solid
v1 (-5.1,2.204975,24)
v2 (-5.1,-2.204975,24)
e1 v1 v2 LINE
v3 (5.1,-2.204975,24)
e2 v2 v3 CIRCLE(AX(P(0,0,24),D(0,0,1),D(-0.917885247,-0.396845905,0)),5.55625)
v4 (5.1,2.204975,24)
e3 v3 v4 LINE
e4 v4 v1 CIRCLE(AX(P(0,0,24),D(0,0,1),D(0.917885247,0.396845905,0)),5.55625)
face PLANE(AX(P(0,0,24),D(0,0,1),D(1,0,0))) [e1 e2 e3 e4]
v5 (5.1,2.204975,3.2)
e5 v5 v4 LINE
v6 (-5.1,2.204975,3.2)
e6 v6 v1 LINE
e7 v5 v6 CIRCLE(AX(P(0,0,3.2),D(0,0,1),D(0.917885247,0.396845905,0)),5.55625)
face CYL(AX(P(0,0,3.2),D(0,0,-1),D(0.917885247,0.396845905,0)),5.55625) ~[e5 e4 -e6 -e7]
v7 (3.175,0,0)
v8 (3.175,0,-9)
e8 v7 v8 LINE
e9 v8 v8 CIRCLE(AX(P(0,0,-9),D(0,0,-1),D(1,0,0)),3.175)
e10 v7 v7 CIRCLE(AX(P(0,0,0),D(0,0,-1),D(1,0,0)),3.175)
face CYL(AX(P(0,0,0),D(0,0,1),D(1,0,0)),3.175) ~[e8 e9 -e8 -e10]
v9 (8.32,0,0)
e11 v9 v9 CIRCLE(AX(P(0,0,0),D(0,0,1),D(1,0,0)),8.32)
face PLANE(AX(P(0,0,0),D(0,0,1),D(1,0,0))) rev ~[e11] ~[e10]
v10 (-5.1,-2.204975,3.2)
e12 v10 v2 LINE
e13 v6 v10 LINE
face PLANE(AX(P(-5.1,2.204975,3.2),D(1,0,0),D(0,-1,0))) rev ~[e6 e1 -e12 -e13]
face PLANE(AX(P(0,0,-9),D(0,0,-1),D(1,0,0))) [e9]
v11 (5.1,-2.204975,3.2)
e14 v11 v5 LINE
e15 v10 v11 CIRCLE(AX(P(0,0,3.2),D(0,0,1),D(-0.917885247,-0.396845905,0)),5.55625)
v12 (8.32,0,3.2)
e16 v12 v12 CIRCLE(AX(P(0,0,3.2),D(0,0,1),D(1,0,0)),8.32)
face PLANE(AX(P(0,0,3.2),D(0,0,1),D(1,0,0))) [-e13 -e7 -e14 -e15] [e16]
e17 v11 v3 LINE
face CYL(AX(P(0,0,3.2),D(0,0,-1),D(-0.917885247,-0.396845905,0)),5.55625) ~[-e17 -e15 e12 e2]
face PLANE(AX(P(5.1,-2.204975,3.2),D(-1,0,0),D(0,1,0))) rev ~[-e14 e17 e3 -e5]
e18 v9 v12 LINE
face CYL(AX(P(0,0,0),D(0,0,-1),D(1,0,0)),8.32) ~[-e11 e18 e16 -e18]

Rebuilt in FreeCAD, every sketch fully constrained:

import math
import FreeCAD as App
import Part
import Sketcher

doc = App.newDocument("Part")
body = doc.addObject("PartDesign::Body", "Body")

sketch1 = doc.addObject("Sketcher::SketchObject", "Sketch")
body.addObject(sketch1)
sketch1.AttachmentSupport = (doc.XY_Plane, [""])
sketch1.MapMode = "FlatFace"
sketch1.addGeometry(Part.Circle(App.Vector(0, 0, 0), App.Vector(0, 0, 1), 8), False)
sketch1.addConstraint(Sketcher.Constraint("Coincident", 0, 3, -1, 1))
sketch1.addConstraint(Sketcher.Constraint("Diameter", 0, 16.64))
pad1 = doc.addObject("PartDesign::Pad", "Pad")
body.addObject(pad1)
pad1.Profile = sketch1
pad1.Length = 3.2

sketch2 = doc.addObject("Sketcher::SketchObject", "Sketch001")
body.addObject(sketch2)
sketch2.AttachmentSupport = (doc.XY_Plane, [""])
sketch2.MapMode = "FlatFace"
sketch2.AttachmentOffset = App.Placement(App.Vector(0, 0, 3.2), App.Rotation())
sketch2.addGeometry(Part.LineSegment(App.Vector(5.1, -2.2, 0), App.Vector(5.1, 2.2, 0)), False)
sketch2.addGeometry(Part.ArcOfCircle(Part.Circle(App.Vector(0, 0, 0), App.Vector(0, 0, 1), 5.6), math.radians(23), math.radians(157)), False)
sketch2.addGeometry(Part.LineSegment(App.Vector(-5.1, 2.2, 0), App.Vector(-5.1, -2.2, 0)), False)
sketch2.addGeometry(Part.ArcOfCircle(Part.Circle(App.Vector(0, 0, 0), App.Vector(0, 0, 1), 5.6), math.radians(-157), math.radians(-23)), False)
sketch2.addConstraint(Sketcher.Constraint("Coincident", 0, 2, 1, 1))
sketch2.addConstraint(Sketcher.Constraint("Coincident", 1, 2, 2, 1))
sketch2.addConstraint(Sketcher.Constraint("Coincident", 2, 2, 3, 1))
sketch2.addConstraint(Sketcher.Constraint("Coincident", 3, 2, 0, 1))
sketch2.addConstraint(Sketcher.Constraint("Vertical", 0))
sketch2.addConstraint(Sketcher.Constraint("Vertical", 2))
sketch2.addConstraint(Sketcher.Constraint("Coincident", 1, 3, -1, 1))
sketch2.addConstraint(Sketcher.Constraint("Coincident", 3, 3, -1, 1))
sketch2.addConstraint(Sketcher.Constraint("Equal", 1, 3))
sketch2.addConstraint(Sketcher.Constraint("Horizontal", 0, 2, 1, 2))
sketch2.addConstraint(Sketcher.Constraint("DistanceX", -1, 1, 0, 2, 5.1))
sketch2.addConstraint(Sketcher.Constraint("Radius", 1, 5.55625))
pad2 = doc.addObject("PartDesign::Pad", "Pad001")
body.addObject(pad2)
pad2.Profile = sketch2
pad2.Length = 20.8

sketch3 = doc.addObject("Sketcher::SketchObject", "Sketch002")
body.addObject(sketch3)
sketch3.AttachmentSupport = (doc.XY_Plane, [""])
sketch3.MapMode = "FlatFace"
sketch3.addGeometry(Part.Circle(App.Vector(0, 0, 0), App.Vector(0, 0, 1), 3.2), False)
sketch3.addConstraint(Sketcher.Constraint("Coincident", 0, 3, -1, 1))
sketch3.addConstraint(Sketcher.Constraint("Diameter", 0, 6.35))
pad3 = doc.addObject("PartDesign::Pad", "Pad002")
body.addObject(pad3)
pad3.Profile = sketch3
pad3.Length = 9
pad3.Reversed = True

doc.recompute()
